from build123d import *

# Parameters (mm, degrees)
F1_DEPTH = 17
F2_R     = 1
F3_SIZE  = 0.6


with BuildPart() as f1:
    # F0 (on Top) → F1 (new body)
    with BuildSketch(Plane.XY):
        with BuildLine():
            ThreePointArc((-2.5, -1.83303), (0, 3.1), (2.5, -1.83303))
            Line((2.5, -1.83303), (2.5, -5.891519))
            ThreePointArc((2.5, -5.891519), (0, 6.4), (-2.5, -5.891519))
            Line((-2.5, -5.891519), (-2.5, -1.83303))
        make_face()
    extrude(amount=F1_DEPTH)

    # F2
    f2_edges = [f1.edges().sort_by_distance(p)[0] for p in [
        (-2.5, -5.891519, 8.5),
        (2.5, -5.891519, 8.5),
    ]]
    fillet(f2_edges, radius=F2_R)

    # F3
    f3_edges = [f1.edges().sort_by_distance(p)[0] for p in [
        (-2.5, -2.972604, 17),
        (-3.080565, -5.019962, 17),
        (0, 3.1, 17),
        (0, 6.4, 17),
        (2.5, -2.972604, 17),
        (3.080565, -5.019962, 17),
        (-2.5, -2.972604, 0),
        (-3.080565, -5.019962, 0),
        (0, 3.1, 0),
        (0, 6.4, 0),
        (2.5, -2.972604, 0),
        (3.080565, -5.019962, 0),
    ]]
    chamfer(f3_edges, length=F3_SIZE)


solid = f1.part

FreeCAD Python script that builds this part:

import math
import FreeCAD as App
import Part
import Sketcher


def edges_at(feature, points):
    """Names of the edges that pass closest to the given points."""
    edges = feature.Shape.Edges
    near = lambda p: min(range(len(edges)), key=lambda i: edges[i].distToShape(Part.Vertex(*p))[0])
    return sorted({f"Edge{near(p) + 1}" for p in points})

doc = App.newDocument("Part")
body = doc.addObject("PartDesign::Body", "Body")

# Sketch on XY plane
sketch1 = body.newObject("Sketcher::SketchObject", "Sketch")
sketch1.AttachmentSupport = (doc.getObject("XY_Plane"), [""])
sketch1.MapMode = "FlatFace"
sketch1.addGeometry(Part.ArcOfCircle(Part.Circle(App.Vector(0, 0, 0), App.Vector(0, 0, 1), 3.1), math.radians(-36), math.radians(216)), False)
sketch1.addGeometry(Part.LineSegment(App.Vector(2.5, -1.8, 0), App.Vector(2.5, -5.9, 0)), False)
sketch1.addGeometry(Part.ArcOfCircle(Part.Circle(App.Vector(0, 0, 0), App.Vector(0, 0, 1), 6.4), math.radians(-67), math.radians(247)), False)
sketch1.addGeometry(Part.LineSegment(App.Vector(-2.5, -5.9, 0), App.Vector(-2.5, -1.8, 0)), False)
sketch1.addConstraint(Sketcher.Constraint("Coincident", 0, 1, 1, 1))
sketch1.addConstraint(Sketcher.Constraint("Coincident", 1, 2, 2, 1))
sketch1.addConstraint(Sketcher.Constraint("Coincident", 2, 2, 3, 1))
sketch1.addConstraint(Sketcher.Constraint("Coincident", 3, 2, 0, 2))
sketch1.addConstraint(Sketcher.Constraint("Vertical", 1))
sketch1.addConstraint(Sketcher.Constraint("Vertical", 3))
sketch1.addConstraint(Sketcher.Constraint("Coincident", 0, 3, -1, 1))
sketch1.addConstraint(Sketcher.Constraint("Coincident", 2, 3, -1, 1))
sketch1.addConstraint(Sketcher.Constraint("Horizontal", 1, 2, 2, 2))
sketch1.addConstraint(Sketcher.Constraint("Radius", 0, 3.1))
sketch1.addConstraint(Sketcher.Constraint("Radius", 2, 6.4))
sketch1.addConstraint(Sketcher.Constraint("DistanceX", 2, 2, 1, 2, 5.0))
pad1 = body.newObject("PartDesign::Pad", "Pad")
pad1.Profile = sketch1
pad1.Length = 17
doc.recompute()

fillet = body.newObject("PartDesign::Fillet", "Fillet")
fillet.Base = (pad1, edges_at(pad1, [(-2.5, -5.892, 8.5), (2.5, -5.892, 8.5)]))
fillet.Radius = 1
doc.recompute()

chamfer = body.newObject("PartDesign::Chamfer", "Chamfer")
chamfer.Base = (fillet, edges_at(fillet, [
    (-2.5, -2.973, 17),
    (-3.081, -5.02, 17),
    (0, 3.1, 17),
    (0, 6.4, 17),
    (2.5, -2.973, 17),
    (3.081, -5.02, 17),
    (-2.5, -2.973, 0),
    (-3.081, -5.02, 0),
    (0, 3.1, 0),
    (0, 6.4, 0),
    (2.5, -2.973, 0),
    (3.081, -5.02, 0),
]))
chamfer.Size = 0.6

doc.recompute()
